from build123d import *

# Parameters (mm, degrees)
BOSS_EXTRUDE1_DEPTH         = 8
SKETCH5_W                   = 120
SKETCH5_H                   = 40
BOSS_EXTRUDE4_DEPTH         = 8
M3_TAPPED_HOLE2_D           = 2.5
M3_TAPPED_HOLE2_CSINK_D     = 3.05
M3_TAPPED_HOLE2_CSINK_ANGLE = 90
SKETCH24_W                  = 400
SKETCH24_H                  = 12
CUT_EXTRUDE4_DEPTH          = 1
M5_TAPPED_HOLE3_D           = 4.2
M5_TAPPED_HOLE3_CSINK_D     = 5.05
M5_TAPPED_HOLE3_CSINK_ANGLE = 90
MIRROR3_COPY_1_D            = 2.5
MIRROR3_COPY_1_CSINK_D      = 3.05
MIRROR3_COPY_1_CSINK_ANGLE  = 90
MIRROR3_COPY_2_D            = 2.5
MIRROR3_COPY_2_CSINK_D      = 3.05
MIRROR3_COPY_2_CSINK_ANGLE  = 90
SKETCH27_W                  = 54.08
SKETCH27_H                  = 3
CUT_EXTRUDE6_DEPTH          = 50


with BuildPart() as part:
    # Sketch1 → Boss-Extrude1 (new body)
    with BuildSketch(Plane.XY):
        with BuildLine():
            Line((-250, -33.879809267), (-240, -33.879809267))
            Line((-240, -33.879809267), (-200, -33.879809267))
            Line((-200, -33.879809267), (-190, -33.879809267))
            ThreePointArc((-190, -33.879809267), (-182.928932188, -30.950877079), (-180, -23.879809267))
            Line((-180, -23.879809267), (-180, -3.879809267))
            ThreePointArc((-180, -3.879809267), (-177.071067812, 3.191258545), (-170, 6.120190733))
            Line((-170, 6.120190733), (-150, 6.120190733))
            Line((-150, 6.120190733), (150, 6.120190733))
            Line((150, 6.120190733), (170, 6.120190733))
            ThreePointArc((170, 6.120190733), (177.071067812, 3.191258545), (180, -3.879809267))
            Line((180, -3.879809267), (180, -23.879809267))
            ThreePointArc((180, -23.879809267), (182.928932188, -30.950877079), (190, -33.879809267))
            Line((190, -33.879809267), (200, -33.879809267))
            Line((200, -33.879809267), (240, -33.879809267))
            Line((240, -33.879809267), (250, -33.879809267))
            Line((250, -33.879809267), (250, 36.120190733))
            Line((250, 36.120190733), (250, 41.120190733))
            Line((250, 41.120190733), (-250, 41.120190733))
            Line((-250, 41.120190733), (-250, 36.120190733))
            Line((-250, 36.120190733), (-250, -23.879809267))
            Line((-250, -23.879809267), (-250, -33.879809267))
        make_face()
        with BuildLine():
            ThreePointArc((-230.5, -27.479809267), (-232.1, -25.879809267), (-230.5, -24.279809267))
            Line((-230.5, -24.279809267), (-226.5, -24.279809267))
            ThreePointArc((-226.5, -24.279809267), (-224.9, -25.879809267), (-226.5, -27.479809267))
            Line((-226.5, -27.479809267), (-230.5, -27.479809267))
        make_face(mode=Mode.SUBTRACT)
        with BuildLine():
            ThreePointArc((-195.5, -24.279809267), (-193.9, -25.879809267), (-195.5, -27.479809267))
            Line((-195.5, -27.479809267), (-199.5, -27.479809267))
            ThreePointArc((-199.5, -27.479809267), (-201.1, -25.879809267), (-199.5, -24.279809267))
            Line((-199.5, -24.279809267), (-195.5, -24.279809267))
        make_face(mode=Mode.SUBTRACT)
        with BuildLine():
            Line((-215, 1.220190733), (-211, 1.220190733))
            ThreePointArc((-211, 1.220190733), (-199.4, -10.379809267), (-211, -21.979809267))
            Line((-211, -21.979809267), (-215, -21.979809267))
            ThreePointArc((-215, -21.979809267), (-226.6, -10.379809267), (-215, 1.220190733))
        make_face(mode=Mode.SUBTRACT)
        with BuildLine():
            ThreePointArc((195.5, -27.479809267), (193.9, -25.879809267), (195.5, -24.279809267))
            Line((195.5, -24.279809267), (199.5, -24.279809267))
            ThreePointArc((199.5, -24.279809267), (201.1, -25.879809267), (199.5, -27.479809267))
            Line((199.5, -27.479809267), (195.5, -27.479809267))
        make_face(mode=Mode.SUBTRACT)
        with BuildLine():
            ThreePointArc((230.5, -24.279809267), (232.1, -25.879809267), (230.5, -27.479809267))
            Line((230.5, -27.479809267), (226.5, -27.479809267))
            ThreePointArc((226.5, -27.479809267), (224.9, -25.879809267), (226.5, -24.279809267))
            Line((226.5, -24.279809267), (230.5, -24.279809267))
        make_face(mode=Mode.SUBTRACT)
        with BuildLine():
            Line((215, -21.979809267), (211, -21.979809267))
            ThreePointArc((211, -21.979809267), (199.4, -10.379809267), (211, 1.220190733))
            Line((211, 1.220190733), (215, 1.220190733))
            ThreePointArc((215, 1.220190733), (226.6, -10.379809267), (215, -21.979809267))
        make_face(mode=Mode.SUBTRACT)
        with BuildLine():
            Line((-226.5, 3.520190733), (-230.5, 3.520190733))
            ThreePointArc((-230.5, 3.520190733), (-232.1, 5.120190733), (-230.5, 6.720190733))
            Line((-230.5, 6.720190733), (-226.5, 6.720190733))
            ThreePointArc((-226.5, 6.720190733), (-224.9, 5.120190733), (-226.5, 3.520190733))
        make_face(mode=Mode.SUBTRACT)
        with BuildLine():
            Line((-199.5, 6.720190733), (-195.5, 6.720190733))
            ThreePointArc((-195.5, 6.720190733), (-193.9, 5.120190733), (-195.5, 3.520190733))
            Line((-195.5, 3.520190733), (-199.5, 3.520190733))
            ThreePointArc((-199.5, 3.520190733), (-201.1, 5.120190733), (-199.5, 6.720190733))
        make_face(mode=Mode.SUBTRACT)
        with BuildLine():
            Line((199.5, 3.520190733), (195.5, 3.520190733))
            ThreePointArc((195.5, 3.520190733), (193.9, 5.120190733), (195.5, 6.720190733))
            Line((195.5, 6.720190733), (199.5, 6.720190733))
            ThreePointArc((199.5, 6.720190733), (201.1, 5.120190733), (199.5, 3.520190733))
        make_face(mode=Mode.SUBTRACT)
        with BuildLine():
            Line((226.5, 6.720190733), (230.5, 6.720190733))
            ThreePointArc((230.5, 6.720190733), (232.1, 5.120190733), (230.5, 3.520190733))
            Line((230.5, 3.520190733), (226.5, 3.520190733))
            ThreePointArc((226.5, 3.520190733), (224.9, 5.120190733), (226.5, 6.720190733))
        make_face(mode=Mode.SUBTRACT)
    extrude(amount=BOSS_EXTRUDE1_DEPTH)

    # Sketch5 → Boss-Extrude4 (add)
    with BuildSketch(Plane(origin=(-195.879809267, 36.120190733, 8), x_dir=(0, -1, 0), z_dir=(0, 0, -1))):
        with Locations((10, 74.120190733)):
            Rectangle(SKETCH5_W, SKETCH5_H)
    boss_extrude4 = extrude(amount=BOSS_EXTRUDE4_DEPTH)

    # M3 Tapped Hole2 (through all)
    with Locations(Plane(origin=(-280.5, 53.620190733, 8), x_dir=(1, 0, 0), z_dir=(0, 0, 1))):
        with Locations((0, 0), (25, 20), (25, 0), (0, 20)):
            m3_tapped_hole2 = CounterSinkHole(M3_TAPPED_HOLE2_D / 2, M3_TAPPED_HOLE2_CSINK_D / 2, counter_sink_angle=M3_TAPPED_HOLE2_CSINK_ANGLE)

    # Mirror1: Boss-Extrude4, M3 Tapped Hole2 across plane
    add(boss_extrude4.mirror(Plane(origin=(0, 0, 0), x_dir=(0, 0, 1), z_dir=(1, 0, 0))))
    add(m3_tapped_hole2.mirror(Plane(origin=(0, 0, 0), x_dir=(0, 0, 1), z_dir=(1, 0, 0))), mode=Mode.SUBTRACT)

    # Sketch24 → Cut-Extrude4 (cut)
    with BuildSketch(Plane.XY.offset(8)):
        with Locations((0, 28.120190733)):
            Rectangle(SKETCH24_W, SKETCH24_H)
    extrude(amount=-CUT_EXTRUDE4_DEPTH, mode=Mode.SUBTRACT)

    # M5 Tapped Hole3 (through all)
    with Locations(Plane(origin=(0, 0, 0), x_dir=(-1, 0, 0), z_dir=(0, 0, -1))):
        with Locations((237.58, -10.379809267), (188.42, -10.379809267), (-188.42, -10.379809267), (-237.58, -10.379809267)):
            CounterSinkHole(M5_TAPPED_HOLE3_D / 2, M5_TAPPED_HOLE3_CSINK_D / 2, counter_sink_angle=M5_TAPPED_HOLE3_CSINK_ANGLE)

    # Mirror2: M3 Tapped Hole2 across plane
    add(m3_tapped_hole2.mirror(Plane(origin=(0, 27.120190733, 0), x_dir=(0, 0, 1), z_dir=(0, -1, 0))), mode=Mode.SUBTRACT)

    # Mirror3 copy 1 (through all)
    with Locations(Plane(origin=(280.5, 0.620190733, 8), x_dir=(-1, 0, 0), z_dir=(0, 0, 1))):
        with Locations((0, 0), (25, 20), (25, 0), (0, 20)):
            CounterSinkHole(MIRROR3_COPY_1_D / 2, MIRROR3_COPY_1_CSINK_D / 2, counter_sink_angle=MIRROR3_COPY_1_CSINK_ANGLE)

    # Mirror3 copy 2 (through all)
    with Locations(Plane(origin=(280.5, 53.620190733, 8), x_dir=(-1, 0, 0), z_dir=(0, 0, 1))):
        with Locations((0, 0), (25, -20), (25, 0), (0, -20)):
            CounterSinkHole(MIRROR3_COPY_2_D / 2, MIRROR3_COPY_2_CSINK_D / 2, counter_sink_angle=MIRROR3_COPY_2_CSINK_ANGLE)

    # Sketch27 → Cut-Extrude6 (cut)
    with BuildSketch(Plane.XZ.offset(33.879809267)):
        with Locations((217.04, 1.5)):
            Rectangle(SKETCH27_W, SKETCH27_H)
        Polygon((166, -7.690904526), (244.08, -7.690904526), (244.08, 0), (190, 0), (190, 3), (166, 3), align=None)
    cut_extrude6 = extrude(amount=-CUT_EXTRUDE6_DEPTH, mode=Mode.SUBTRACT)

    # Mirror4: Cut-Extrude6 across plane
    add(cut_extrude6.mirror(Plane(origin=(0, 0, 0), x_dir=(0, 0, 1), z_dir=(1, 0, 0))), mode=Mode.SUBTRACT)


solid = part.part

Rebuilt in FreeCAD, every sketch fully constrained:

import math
import FreeCAD as App
import Part
import Sketcher

V = App.Vector

doc = App.newDocument("Part")
params = doc.addObject("Spreadsheet::Sheet", "Params")
for row, (alias, value) in enumerate([
    ("sketch1_radius", "10 mm"),
    ("sketch1_radius2", "1.6 mm"),
    ("sketch1_radius3", "11.6 mm"),
    ("sketch1_width", "60 mm"),
    ("sketch1_width2", "340 mm"),
    ("pad1_length", "8 mm"),
    ("sketch2_width", "40 mm"),
    ("sketch2_height", "120 mm"),
    ("pad2_length", "8 mm"),
    ("sketch3_diameter", "2.5 mm"),
    ("hole_diameter", "2.5 mm"),
    ("hole_csink_diameter", "3.05 mm"),
    ("sketch4_width", "400 mm"),
    ("sketch4_height", "12 mm"),
    ("pocket1_length", "1 mm"),
    ("sketch5_diameter", "4.2 mm"),
    ("hole2_diameter", "4.2 mm"),
    ("hole2_csink_diameter", "5.05 mm"),
    ("sketch6_diameter", "2.5 mm"),
    ("hole3_diameter", "2.5 mm"),
    ("hole3_csink_diameter", "3.05 mm"),
    ("sketch7_diameter", "2.5 mm"),
    ("hole4_diameter", "2.5 mm"),
    ("hole4_csink_diameter", "3.05 mm"),
    ("sketch8_width", "78.08 mm"),
    ("pocket2_length", "50 mm"),
], start=1):
    params.set(f"A{row}", alias)
    params.set(f"B{row}", "=" + value)
    params.setAlias(f"B{row}", alias)

body = doc.addObject("PartDesign::Body", "Body")

sketch1 = body.newObject("Sketcher::SketchObject", "Sketch")
sketch1.AttachmentSupport = (doc.getObject("XY_Plane"), [""])
sketch1.MapMode = "FlatFace"
sketch1.addGeometry(Part.LineSegment(V(-250, -33.9, 0), V(-190, -33.9, 0)), False)
sketch1.addGeometry(Part.ArcOfCircle(Part.Circle(V(-190, -23.9, 0), V(0, 0, 1), 10), math.radians(-90), math.radians(0)), False)
sketch1.addGeometry(Part.LineSegment(V(-180, -23.9, 0), V(-180, -3.9, 0)), False)
sketch1.addGeometry(Part.ArcOfCircle(Part.Circle(V(-170, -3.9, 0), V(0, 0, 1), 10), math.radians(90), math.radians(180)), False)
sketch1.addGeometry(Part.LineSegment(V(-170, 6.1, 0), V(170, 6.1, 0)), False)
sketch1.addGeometry(Part.ArcOfCircle(Part.Circle(V(170, -3.9, 0), V(0, 0, 1), 10), math.radians(0), math.radians(90)), False)
sketch1.addGeometry(Part.LineSegment(V(180, -3.9, 0), V(180, -23.9, 0)), False)
sketch1.addGeometry(Part.ArcOfCircle(Part.Circle(V(190, -23.9, 0), V(0, 0, 1), 10), math.radians(180), math.radians(270)), False)
sketch1.addGeometry(Part.LineSegment(V(190, -33.9, 0), V(250, -33.9, 0)), False)
sketch1.addGeometry(Part.LineSegment(V(250, -33.9, 0), V(250, 41.1, 0)), False)
sketch1.addGeometry(Part.LineSegment(V(250, 41.1, 0), V(-250, 41.1, 0)), False)
sketch1.addGeometry(Part.LineSegment(V(-250, 41.1, 0), V(-250, -33.9, 0)), False)
sketch1.addGeometry(Part.LineSegment(V(-226.5, -27.5, 0), V(-230.5, -27.5, 0)), False)
sketch1.addGeometry(Part.ArcOfCircle(Part.Circle(V(-230.5, -25.9, 0), V(0, 0, 1), 1.6), math.radians(90), math.radians(270)), False)
sketch1.addGeometry(Part.LineSegment(V(-230.5, -24.3, 0), V(-226.5, -24.3, 0)), False)
sketch1.addGeometry(Part.ArcOfCircle(Part.Circle(V(-226.5, -25.9, 0), V(0, 0, 1), 1.6), math.radians(-90), math.radians(90)), False)
sketch1.addGeometry(Part.LineSegment(V(-199.5, -24.3, 0), V(-195.5, -24.3, 0)), False)
sketch1.addGeometry(Part.ArcOfCircle(Part.Circle(V(-195.5, -25.9, 0), V(0, 0, 1), 1.6), math.radians(-90), math.radians(90)), False)
sketch1.addGeometry(Part.LineSegment(V(-195.5, -27.5, 0), V(-199.5, -27.5, 0)), False)
sketch1.addGeometry(Part.ArcOfCircle(Part.Circle(V(-199.5, -25.9, 0), V(0, 0, 1), 1.6), math.radians(90), math.radians(270)), False)
sketch1.addGeometry(Part.LineSegment(V(199.5, -27.5, 0), V(195.5, -27.5, 0)), False)
sketch1.addGeometry(Part.ArcOfCircle(Part.Circle(V(195.5, -25.9, 0), V(0, 0, 1), 1.6), math.radians(90), math.radians(270)), False)
sketch1.addGeometry(Part.LineSegment(V(195.5, -24.3, 0), V(199.5, -24.3, 0)), False)
sketch1.addGeometry(Part.ArcOfCircle(Part.Circle(V(199.5, -25.9, 0), V(0, 0, 1), 1.6), math.radians(-90), math.radians(90)), False)
sketch1.addGeometry(Part.LineSegment(V(226.5, -24.3, 0), V(230.5, -24.3, 0)), False)
sketch1.addGeometry(Part.ArcOfCircle(Part.Circle(V(230.5, -25.9, 0), V(0, 0, 1), 1.6), math.radians(-90), math.radians(90)), False)
sketch1.addGeometry(Part.LineSegment(V(230.5, -27.5, 0), V(226.5, -27.5, 0)), False)
sketch1.addGeometry(Part.ArcOfCircle(Part.Circle(V(226.5, -25.9, 0), V(0, 0, 1), 1.6), math.radians(90), math.radians(270)), False)
sketch1.addGeometry(Part.ArcOfCircle(Part.Circle(V(-215, -10.4, 0), V(0, 0, 1), 11.6), math.radians(90), math.radians(270)), False)
sketch1.addGeometry(Part.LineSegment(V(-215, 1.2, 0), V(-211, 1.2, 0)), False)
sketch1.addGeometry(Part.ArcOfCircle(Part.Circle(V(-211, -10.4, 0), V(0, 0, 1), 11.6), math.radians(-90), math.radians(90)), False)
sketch1.addGeometry(Part.LineSegment(V(-211, -22, 0), V(-215, -22, 0)), False)
sketch1.addGeometry(Part.ArcOfCircle(Part.Circle(V(-226.5, 5.1, 0), V(0, 0, 1), 1.6), math.radians(-90), math.radians(90)), False)
sketch1.addGeometry(Part.LineSegment(V(-226.5, 3.5, 0), V(-230.5, 3.5, 0)), False)
sketch1.addGeometry(Part.ArcOfCircle(Part.Circle(V(-230.5, 5.1, 0), V(0, 0, 1), 1.6), math.radians(90), math.radians(270)), False)
sketch1.addGeometry(Part.LineSegment(V(-230.5, 6.7, 0), V(-226.5, 6.7, 0)), False)
sketch1.addGeometry(Part.ArcOfCircle(Part.Circle(V(-199.5, 5.1, 0), V(0, 0, 1), 1.6), math.radians(90), math.radians(270)), False)
sketch1.addGeometry(Part.LineSegment(V(-199.5, 6.7, 0), V(-195.5, 6.7, 0)), False)
sketch1.addGeometry(Part.ArcOfCircle(Part.Circle(V(-195.5, 5.1, 0), V(0, 0, 1), 1.6), math.radians(-90), math.radians(90)), False)
sketch1.addGeometry(Part.LineSegment(V(-195.5, 3.5, 0), V(-199.5, 3.5, 0)), False)
sketch1.addGeometry(Part.ArcOfCircle(Part.Circle(V(215, -10.4, 0), V(0, 0, 1), 11.6), math.radians(-90), math.radians(90)), False)
sketch1.addGeometry(Part.LineSegment(V(215, -22, 0), V(211, -22, 0)), False)
sketch1.addGeometry(Part.ArcOfCircle(Part.Circle(V(211, -10.4, 0), V(0, 0, 1), 11.6), math.radians(90), math.radians(270)), False)
sketch1.addGeometry(Part.LineSegment(V(211, 1.2, 0), V(215, 1.2, 0)), False)
sketch1.addGeometry(Part.ArcOfCircle(Part.Circle(V(199.5, 5.1, 0), V(0, 0, 1), 1.6), math.radians(-90), math.radians(90)), False)
sketch1.addGeometry(Part.LineSegment(V(199.5, 3.5, 0), V(195.5, 3.5, 0)), False)
sketch1.addGeometry(Part.ArcOfCircle(Part.Circle(V(195.5, 5.1, 0), V(0, 0, 1), 1.6), math.radians(90), math.radians(270)), False)
sketch1.addGeometry(Part.LineSegment(V(195.5, 6.7, 0), V(199.5, 6.7, 0)), False)
sketch1.addGeometry(Part.ArcOfCircle(Part.Circle(V(226.5, 5.1, 0), V(0, 0, 1), 1.6), math.radians(90), math.radians(270)), False)
sketch1.addGeometry(Part.LineSegment(V(226.5, 6.7, 0), V(230.5, 6.7, 0)), False)
sketch1.addGeometry(Part.ArcOfCircle(Part.Circle(V(230.5, 5.1, 0), V(0, 0, 1), 1.6), math.radians(-90), math.radians(90)), False)
sketch1.addGeometry(Part.LineSegment(V(230.5, 3.5, 0), V(226.5, 3.5, 0)), False)
sketch1.addConstraint(Sketcher.Constraint("Tangent", 0, 2, 1, 1))
sketch1.addConstraint(Sketcher.Constraint("Tangent", 1, 2, 2, 1))
sketch1.addConstraint(Sketcher.Constraint("Tangent", 2, 2, 3, 2))
sketch1.addConstraint(Sketcher.Constraint("Tangent", 3, 1, 4, 1))
sketch1.addConstraint(Sketcher.Constraint("Tangent", 4, 2, 5, 2))
sketch1.addConstraint(Sketcher.Constraint("Tangent", 5, 1, 6, 1))
sketch1.addConstraint(Sketcher.Constraint("Tangent", 6, 2, 7, 1))
sketch1.addConstraint(Sketcher.Constraint("Tangent", 7, 2, 8, 1))
sketch1.addConstraint(Sketcher.Constraint("Coincident", 8, 2, 9, 1))
sketch1.addConstraint(Sketcher.Constraint("Coincident", 9, 2, 10, 1))
sketch1.addConstraint(Sketcher.Constraint("Coincident", 10, 2, 11, 1))
sketch1.addConstraint(Sketcher.Constraint("Coincident", 11, 2, 0, 1))
sketch1.addConstraint(Sketcher.Constraint("Tangent", 12, 2, 13, 2))
sketch1.addConstraint(Sketcher.Constraint("Tangent", 13, 1, 14, 1))
sketch1.addConstraint(Sketcher.Constraint("Tangent", 14, 2, 15, 2))
sketch1.addConstraint(Sketcher.Constraint("Tangent", 15, 1, 12, 1))
sketch1.addConstraint(Sketcher.Constraint("Tangent", 16, 2, 17, 2))
sketch1.addConstraint(Sketcher.Constraint("Tangent", 17, 1, 18, 1))
sketch1.addConstraint(Sketcher.Constraint("Tangent", 18, 2, 19, 2))
sketch1.addConstraint(Sketcher.Constraint("Tangent", 19, 1, 16, 1))
sketch1.addConstraint(Sketcher.Constraint("Tangent", 20, 2, 21, 2))
sketch1.addConstraint(Sketcher.Constraint("Tangent", 21, 1, 22, 1))
sketch1.addConstraint(Sketcher.Constraint("Tangent", 22, 2, 23, 2))
sketch1.addConstraint(Sketcher.Constraint("Tangent", 23, 1, 20, 1))
sketch1.addConstraint(Sketcher.Constraint("Tangent", 24, 2, 25, 2))
sketch1.addConstraint(Sketcher.Constraint("Tangent", 25, 1, 26, 1))
sketch1.addConstraint(Sketcher.Constraint("Tangent", 26, 2, 27, 2))
sketch1.addConstraint(Sketcher.Constraint("Tangent", 27, 1, 24, 1))
sketch1.addConstraint(Sketcher.Constraint("Tangent", 28, 1, 29, 1))
sketch1.addConstraint(Sketcher.Constraint("Tangent", 29, 2, 30, 2))
sketch1.addConstraint(Sketcher.Constraint("Tangent", 30, 1, 31, 1))
sketch1.addConstraint(Sketcher.Constraint("Tangent", 31, 2, 28, 2))
sketch1.addConstraint(Sketcher.Constraint("Tangent", 32, 1, 33, 1))
sketch1.addConstraint(Sketcher.Constraint("Tangent", 33, 2, 34, 2))
sketch1.addConstraint(Sketcher.Constraint("Tangent", 34, 1, 35, 1))
sketch1.addConstraint(Sketcher.Constraint("Tangent", 35, 2, 32, 2))
sketch1.addConstraint(Sketcher.Constraint("Tangent", 36, 1, 37, 1))
sketch1.addConstraint(Sketcher.Constraint("Tangent", 37, 2, 38, 2))
sketch1.addConstraint(Sketcher.Constraint("Tangent", 38, 1, 39, 1))
sketch1.addConstraint(Sketcher.Constraint("Tangent", 39, 2, 36, 2))
sketch1.addConstraint(Sketcher.Constraint("Tangent", 40, 1, 41, 1))
sketch1.addConstraint(Sketcher.Constraint("Tangent", 41, 2, 42, 2))
sketch1.addConstraint(Sketcher.Constraint("Tangent", 42, 1, 43, 1))
sketch1.addConstraint(Sketcher.Constraint("Tangent", 43, 2, 40, 2))
sketch1.addConstraint(Sketcher.Constraint("Tangent", 44, 1, 45, 1))
sketch1.addConstraint(Sketcher.Constraint("Tangent", 45, 2, 46, 2))
sketch1.addConstraint(Sketcher.Constraint("Tangent", 46, 1, 47, 1))
sketch1.addConstraint(Sketcher.Constraint("Tangent", 47, 2, 44, 2))
sketch1.addConstraint(Sketcher.Constraint("Tangent", 48, 1, 49, 1))
sketch1.addConstraint(Sketcher.Constraint("Tangent", 49, 2, 50, 2))
sketch1.addConstraint(Sketcher.Constraint("Tangent", 50, 1, 51, 1))
sketch1.addConstraint(Sketcher.Constraint("Tangent", 51, 2, 48, 2))
sketch1.addConstraint(Sketcher.Constraint("Horizontal", 0))
sketch1.addConstraint(Sketcher.Constraint("Vertical", 2))
sketch1.addConstraint(Sketcher.Constraint("Horizontal", 4))
sketch1.addConstraint(Sketcher.Constraint("Vertical", 6))
sketch1.addConstraint(Sketcher.Constraint("Horizontal", 8))
sketch1.addConstraint(Sketcher.Constraint("Vertical", 9))
sketch1.addConstraint(Sketcher.Constraint("Horizontal", 10))
sketch1.addConstraint(Sketcher.Constraint("Vertical", 11))
sketch1.addConstraint(Sketcher.Constraint("Horizontal", 12))
sketch1.addConstraint(Sketcher.Constraint("Horizontal", 14))
sketch1.addConstraint(Sketcher.Constraint("Horizontal", 16))
sketch1.addConstraint(Sketcher.Constraint("Horizontal", 18))
sketch1.addConstraint(Sketcher.Constraint("Horizontal", 20))
sketch1.addConstraint(Sketcher.Constraint("Horizontal", 22))
sketch1.addConstraint(Sketcher.Constraint("Horizontal", 24))
sketch1.addConstraint(Sketcher.Constraint("Horizontal", 26))
sketch1.addConstraint(Sketcher.Constraint("Horizontal", 29))
sketch1.addConstraint(Sketcher.Constraint("Horizontal", 31))
sketch1.addConstraint(Sketcher.Constraint("Horizontal", 33))
sketch1.addConstraint(Sketcher.Constraint("Horizontal", 35))
sketch1.addConstraint(Sketcher.Constraint("Horizontal", 37))
sketch1.addConstraint(Sketcher.Constraint("Horizontal", 39))
sketch1.addConstraint(Sketcher.Constraint("Horizontal", 41))
sketch1.addConstraint(Sketcher.Constraint("Horizontal", 43))
sketch1.addConstraint(Sketcher.Constraint("Horizontal", 45))
sketch1.addConstraint(Sketcher.Constraint("Horizontal", 47))
sketch1.addConstraint(Sketcher.Constraint("Horizontal", 49))
sketch1.addConstraint(Sketcher.Constraint("Horizontal", 51))
sketch1.addConstraint(Sketcher.Constraint("Equal", 1, 3))
sketch1.addConstraint(Sketcher.Constraint("Equal", 3, 5))
sketch1.addConstraint(Sketcher.Constraint("Equal", 5, 7))
sketch1.addConstraint(Sketcher.Constraint("Equal", 15, 17))
sketch1.addConstraint(Sketcher.Constraint("Equal", 19, 21))
sketch1.addConstraint(Sketcher.Constraint("Equal", 23, 25))
sketch1.addConstraint(Sketcher.Constraint("Equal", 27, 32))
sketch1.addConstraint(Sketcher.Constraint("Equal", 34, 36))
sketch1.addConstraint(Sketcher.Constraint("Equal", 30, 40))
sketch1.addConstraint(Sketcher.Constraint("Equal", 38, 44))
sketch1.addConstraint(Sketcher.Constraint("Equal", 46, 48))
sketch1.addConstraint(Sketcher.Constraint("Symmetric", 1, 3, 7, 3, -2))
sketch1.addConstraint(Sketcher.Constraint("Symmetric", 17, 3, 21, 3, -2))
sketch1.addConstraint(Sketcher.Constraint("Symmetric", 13, 3, 25, 3, -2))
sketch1.addConstraint(Sketcher.Constraint("Symmetric", 28, 3, 40, 3, -2))
sketch1.addConstraint(Sketcher.Constraint("Symmetric", 36, 3, 44, 3, -2))
sketch1.addConstraint(Sketcher.Constraint("Symmetric", 32, 3, 48, 3, -2))
sketch1.addConstraint(Sketcher.Constraint("Horizontal", 15, 3, 17, 3))
sketch1.addConstraint(Sketcher.Constraint("Horizontal", 34, 3, 36, 3))
sketch1.addConstraint(Sketcher.Constraint("Vertical", 15, 3, 32, 3))
sketch1.addConstraint(Sketcher.Constraint("Vertical", 13, 3, 34, 3))
sketch1.addConstraint(Sketcher.Constraint("Vertical", 19, 3, 36, 3))
sketch1.addConstraint(Sketcher.Constraint("Vertical", 17, 3, 38, 3))
sketch1.addConstraint(Sketcher.Constraint("Vertical", 23, 3, 44, 3))
sketch1.addConstraint(Sketcher.Constraint("Vertical", 21, 3, 46, 3))
sketch1.addConstraint(Sketcher.Constraint("Vertical", 27, 3, 48, 3))
sketch1.addConstraint(Sketcher.Constraint("Vertical", 25, 3, 50, 3))
sketch1.addConstraint(Sketcher.Constraint("Equal", 0, 8))
sketch1.addConstraint(Sketcher.Constraint("Equal", 14, 16))
sketch1.addConstraint(Sketcher.Constraint("Equal", 26, 29))
sketch1.addConstraint(Sketcher.Constraint("Equal", 39, 41))
sketch1.addConstraint(Sketcher.Constraint("Radius", 1, 10.0))
sketch1.addConstraint(Sketcher.Constraint("Radius", 13, 1.6))
sketch1.addConstraint(Sketcher.Constraint("Radius", 28, 11.6))
sketch1.addConstraint(Sketcher.Constraint("DistanceX", 0, 1, 0, 2, 60.0))
sketch1.addConstraint(Sketcher.Constraint("DistanceX", 4, 1, 4, 2, 340.0))
sketch1.addConstraint(Sketcher.Constraint("DistanceX", 12, 2, 12, 1, 4.0))
sketch1.addConstraint(Sketcher.Constraint("DistanceY", 2, 1, 2, 2, 20.0))
sketch1.addConstraint(Sketcher.Constraint("DistanceY", 9, 1, 9, 2, 75.0))
sketch1.addConstraint(Sketcher.Constraint("DistanceX", 28, 3, -1, 1, 215.0))
sketch1.addConstraint(Sketcher.Constraint("DistanceX", 13, 3, -1, 1, 230.5))
sketch1.addConstraint(Sketcher.Constraint("DistanceX", 17, 3, -1, 1, 195.5))
sketch1.addConstraint(Sketcher.Constraint("DistanceY", 1, 3, -1, 1, 23.879809))
sketch1.addConstraint(Sketcher.Constraint("DistanceY", 13, 3, -1, 1, 25.879809))
sketch1.addConstraint(Sketcher.Constraint("DistanceY", 28, 3, -1, 1, 10.379809))
sketch1.addConstraint(Sketcher.Constraint("DistanceY", -1, 1, 32, 3, 5.120191))
sketch1.setExpression("Constraints[111]", "Params.sketch1_radius")
sketch1.setExpression("Constraints[112]", "Params.sketch1_radius2")
sketch1.setExpression("Constraints[113]", "Params.sketch1_radius3")
sketch1.setExpression("Constraints[114]", "Params.sketch1_width")
sketch1.setExpression("Constraints[115]", "Params.sketch1_width2")
pad1 = body.newObject("PartDesign::Pad", "Pad")
pad1.Profile = sketch1
pad1.setExpression("Length", "Params.pad1_length")

sketch2 = body.newObject("Sketcher::SketchObject", "Sketch001")
sketch2.AttachmentSupport = (doc.getObject("XY_Plane"), [""])
sketch2.MapMode = "FlatFace"
sketch2.AttachmentOffset = App.Placement(V(0, 0, 8), App.Rotation())
sketch2.addGeometry(Part.LineSegment(V(-290, 86, 0), V(-250, 86, 0)), False)
sketch2.addGeometry(Part.LineSegment(V(-250, 86, 0), V(-250, -34, 0)), False)
sketch2.addGeometry(Part.LineSegment(V(-250, -34, 0), V(-290, -34, 0)), False)
sketch2.addGeometry(Part.LineSegment(V(-290, -34, 0), V(-290, 86, 0)), False)
sketch2.addConstraint(Sketcher.Constraint("Coincident", 0, 2, 1, 1))
sketch2.addConstraint(Sketcher.Constraint("Coincident", 1, 2, 2, 1))
sketch2.addConstraint(Sketcher.Constraint("Coincident", 2, 2, 3, 1))
sketch2.addConstraint(Sketcher.Constraint("Coincident", 3, 2, 0, 1))
sketch2.addConstraint(Sketcher.Constraint("Horizontal", 0))
sketch2.addConstraint(Sketcher.Constraint("Vertical", 1))
sketch2.addConstraint(Sketcher.Constraint("Horizontal", 2))
sketch2.addConstraint(Sketcher.Constraint("Vertical", 3))
sketch2.addConstraint(Sketcher.Constraint("DistanceX", 0, 1, 0, 2, 40.0))
sketch2.addConstraint(Sketcher.Constraint("DistanceY", 1, 2, 1, 1, 120.0))
sketch2.addConstraint(Sketcher.Constraint("DistanceX", 0, 2, -1, 1, 250.0))
sketch2.addConstraint(Sketcher.Constraint("DistanceY", -1, 1, 0, 2, 86.120191))
sketch2.setExpression("Constraints[8]", "Params.sketch2_width")
sketch2.setExpression("Constraints[9]", "Params.sketch2_height")
pad2 = body.newObject("PartDesign::Pad", "Pad001")
pad2.Profile = sketch2
pad2.setExpression("Length", "Params.pad2_length")
pad2.Reversed = True

sketch3 = body.newObject("Sketcher::SketchObject", "Sketch002")
sketch3.AttachmentSupport = (doc.getObject("XY_Plane"), [""])
sketch3.MapMode = "FlatFace"
sketch3.AttachmentOffset = App.Placement(V(0, 0, 8), App.Rotation())
sketch3.addGeometry(Part.Circle(V(-280.5, 53.6, 0), V(0, 0, 1), 1.2), False)
sketch3.addGeometry(Part.Circle(V(-255.5, 73.6, 0), V(0, 0, 1), 1.2), False)
sketch3.addGeometry(Part.Circle(V(-255.5, 53.6, 0), V(0, 0, 1), 1.2), False)
sketch3.addGeometry(Part.Circle(V(-280.5, 73.6, 0), V(0, 0, 1), 1.2), False)
sketch3.addConstraint(Sketcher.Constraint("Equal", 0, 1))
sketch3.addConstraint(Sketcher.Constraint("Equal", 1, 2))
sketch3.addConstraint(Sketcher.Constraint("Equal", 2, 3))
sketch3.addConstraint(Sketcher.Constraint("Horizontal", 0, 3, 2, 3))
sketch3.addConstraint(Sketcher.Constraint("Horizontal", 1, 3, 3, 3))
sketch3.addConstraint(Sketcher.Constraint("Vertical", 1, 3, 2, 3))
sketch3.addConstraint(Sketcher.Constraint("Vertical", 0, 3, 3, 3))
sketch3.addConstraint(Sketcher.Constraint("Diameter", 0, 2.5))
sketch3.addConstraint(Sketcher.Constraint("DistanceX", 0, 3, 1, 3, 25.0))
sketch3.addConstraint(Sketcher.Constraint("DistanceY", 0, 3, 1, 3, 20.0))
sketch3.addConstraint(Sketcher.Constraint("DistanceX", 0, 3, -1, 1, 280.5))
sketch3.addConstraint(Sketcher.Constraint("DistanceY", -1, 1, 0, 3, 53.620191))
sketch3.setExpression("Constraints[7]", "Params.sketch3_diameter")
doc.recompute()
hole = body.newObject("PartDesign::Hole", "Hole")
hole.Profile = sketch3
hole.ThreadType = "None"
hole.setExpression("Diameter", "Params.hole_diameter")
hole.DepthType = "ThroughAll"
hole.HoleCutType = "Countersink"
hole.setExpression("HoleCutDiameter", "Params.hole_csink_diameter")
hole.HoleCutCountersinkAngle = 90
doc.recompute()

mirrored = body.newObject("PartDesign::Mirrored", "Mirrored")
mirrored.Originals = [pad2, hole]
mirrored.MirrorPlane = (doc.getObject("YZ_Plane"), [""])
body.Tip = mirrored

sketch4 = body.newObject("Sketcher::SketchObject", "Sketch003")
sketch4.AttachmentSupport = (doc.getObject("XY_Plane"), [""])
sketch4.MapMode = "FlatFace"
sketch4.AttachmentOffset = App.Placement(V(0, 0, 8), App.Rotation())
sketch4.addGeometry(Part.LineSegment(V(-200, 34, 0), V(-200, 22, 0)), False)
sketch4.addGeometry(Part.LineSegment(V(-200, 22, 0), V(200, 22, 0)), False)
sketch4.addGeometry(Part.LineSegment(V(200, 22, 0), V(200, 34, 0)), False)
sketch4.addGeometry(Part.LineSegment(V(200, 34, 0), V(-200, 34, 0)), False)
sketch4.addConstraint(Sketcher.Constraint("Coincident", 0, 2, 1, 1))
sketch4.addConstraint(Sketcher.Constraint("Coincident", 1, 2, 2, 1))
sketch4.addConstraint(Sketcher.Constraint("Coincident", 2, 2, 3, 1))
sketch4.addConstraint(Sketcher.Constraint("Coincident", 3, 2, 0, 1))
sketch4.addConstraint(Sketcher.Constraint("Vertical", 0))
sketch4.addConstraint(Sketcher.Constraint("Horizontal", 1))
sketch4.addConstraint(Sketcher.Constraint("Vertical", 2))
sketch4.addConstraint(Sketcher.Constraint("Horizontal", 3))
sketch4.addConstraint(Sketcher.Constraint("DistanceX", 1, 1, 1, 2, 400.0))
sketch4.addConstraint(Sketcher.Constraint("DistanceY", 0, 2, 0, 1, 12.0))
sketch4.addConstraint(Sketcher.Constraint("DistanceX", 0, 2, -1, 1, 200.0))
sketch4.addConstraint(Sketcher.Constraint("DistanceY", -1, 1, 0, 2, 22.120191))
sketch4.setExpression("Constraints[8]", "Params.sketch4_width")
sketch4.setExpression("Constraints[9]", "Params.sketch4_height")
pocket1 = body.newObject("PartDesign::Pocket", "Pocket")
pocket1.Profile = sketch4
pocket1.setExpression("Length", "Params.pocket1_length")

sketch5 = body.newObject("Sketcher::SketchObject", "Sketch004")
sketch5.AttachmentSupport = (doc.getObject("XY_Plane"), [""])
sketch5.MapMode = "FlatFace"
sketch5.addGeometry(Part.Circle(V(-237.6, -10.4, 0), V(0, 0, 1), 2.1), False)
sketch5.addGeometry(Part.Circle(V(-188.4, -10.4, 0), V(0, 0, 1), 2.1), False)
sketch5.addGeometry(Part.Circle(V(188.4, -10.4, 0), V(0, 0, 1), 2.1), False)
sketch5.addGeometry(Part.Circle(V(237.6, -10.4, 0), V(0, 0, 1), 2.1), False)
sketch5.addConstraint(Sketcher.Constraint("Equal", 0, 1))
sketch5.addConstraint(Sketcher.Constraint("Equal", 1, 2))
sketch5.addConstraint(Sketcher.Constraint("Equal", 2, 3))
sketch5.addConstraint(Sketcher.Constraint("Symmetric", 1, 3, 2, 3, -2))
sketch5.addConstraint(Sketcher.Constraint("Symmetric", 0, 3, 3, 3, -2))
sketch5.addConstraint(Sketcher.Constraint("Horizontal", 0, 3, 1, 3))
sketch5.addConstraint(Sketcher.Constraint("Diameter", 0, 4.2))
sketch5.addConstraint(Sketcher.Constraint("DistanceX", 0, 3, 2, 3, 426.0))
sketch5.addConstraint(Sketcher.Constraint("DistanceX", 0, 3, -1, 1, 237.58))
sketch5.addConstraint(Sketcher.Constraint("DistanceY", 0, 3, -1, 1, 10.379809))
sketch5.setExpression("Constraints[6]", "Params.sketch5_diameter")
doc.recompute()
hole2 = body.newObject("PartDesign::Hole", "Hole001")
hole2.Profile = sketch5
hole2.ThreadType = "None"
hole2.setExpression("Diameter", "Params.hole2_diameter")
hole2.DepthType = "ThroughAll"
hole2.HoleCutType = "Countersink"
hole2.setExpression("HoleCutDiameter", "Params.hole2_csink_diameter")
hole2.HoleCutCountersinkAngle = 90
hole2.Reversed = True
doc.recompute()

datumplane = body.newObject("PartDesign::Plane", "DatumPlane")
datumplane.AttachmentSupport = (doc.getObject("XZ_Plane"), [""])
datumplane.MapMode = "FlatFace"
datumplane.AttachmentOffset = App.Placement(V(0, 0, -27.120191), App.Rotation())
mirrored2 = body.newObject("PartDesign::Mirrored", "Mirrored001")
mirrored2.Originals = [hole]
mirrored2.MirrorPlane = (datumplane, [""])
body.Tip = mirrored2

sketch6 = body.newObject("Sketcher::SketchObject", "Sketch005")
sketch6.AttachmentSupport = (doc.getObject("XY_Plane"), [""])
sketch6.MapMode = "FlatFace"
sketch6.AttachmentOffset = App.Placement(V(0, 0, 8), App.Rotation())
sketch6.addGeometry(Part.Circle(V(280.5, 0.6, 0), V(0, 0, 1), 1.2), False)
sketch6.addGeometry(Part.Circle(V(255.5, -19.4, 0), V(0, 0, 1), 1.2), False)
sketch6.addGeometry(Part.Circle(V(255.5, 0.6, 0), V(0, 0, 1), 1.2), False)
sketch6.addGeometry(Part.Circle(V(280.5, -19.4, 0), V(0, 0, 1), 1.2), False)
sketch6.addConstraint(Sketcher.Constraint("Equal", 0, 1))
sketch6.addConstraint(Sketcher.Constraint("Equal", 1, 2))
sketch6.addConstraint(Sketcher.Constraint("Equal", 2, 3))
sketch6.addConstraint(Sketcher.Constraint("Horizontal", 0, 3, 2, 3))
sketch6.addConstraint(Sketcher.Constraint("Horizontal", 1, 3, 3, 3))
sketch6.addConstraint(Sketcher.Constraint("Vertical", 1, 3, 2, 3))
sketch6.addConstraint(Sketcher.Constraint("Vertical", 0, 3, 3, 3))
sketch6.addConstraint(Sketcher.Constraint("Diameter", 0, 2.5))
sketch6.addConstraint(Sketcher.Constraint("DistanceX", 1, 3, 0, 3, 25.0))
sketch6.addConstraint(Sketcher.Constraint("DistanceY", 1, 3, 0, 3, 20.0))
sketch6.addConstraint(Sketcher.Constraint("DistanceX", -1, 1, 0, 3, 280.5))
sketch6.addConstraint(Sketcher.Constraint("DistanceY", -1, 1, 0, 3, 0.620191))
sketch6.setExpression("Constraints[7]", "Params.sketch6_diameter")
doc.recompute()
hole3 = body.newObject("PartDesign::Hole", "Hole002")
hole3.Profile = sketch6
hole3.ThreadType = "None"
hole3.setExpression("Diameter", "Params.hole3_diameter")
hole3.DepthType = "ThroughAll"
hole3.HoleCutType = "Countersink"
hole3.setExpression("HoleCutDiameter", "Params.hole3_csink_diameter")
hole3.HoleCutCountersinkAngle = 90

sketch7 = body.newObject("Sketcher::SketchObject", "Sketch006")
sketch7.AttachmentSupport = (doc.getObject("XY_Plane"), [""])
sketch7.MapMode = "FlatFace"
sketch7.AttachmentOffset = App.Placement(V(0, 0, 8), App.Rotation())
sketch7.addGeometry(Part.Circle(V(280.5, 53.6, 0), V(0, 0, 1), 1.2), False)
sketch7.addGeometry(Part.Circle(V(255.5, 73.6, 0), V(0, 0, 1), 1.2), False)
sketch7.addGeometry(Part.Circle(V(255.5, 53.6, 0), V(0, 0, 1), 1.2), False)
sketch7.addGeometry(Part.Circle(V(280.5, 73.6, 0), V(0, 0, 1), 1.2), False)
sketch7.addConstraint(Sketcher.Constraint("Equal", 0, 1))
sketch7.addConstraint(Sketcher.Constraint("Equal", 1, 2))
sketch7.addConstraint(Sketcher.Constraint("Equal", 2, 3))
sketch7.addConstraint(Sketcher.Constraint("Horizontal", 0, 3, 2, 3))
sketch7.addConstraint(Sketcher.Constraint("Horizontal", 1, 3, 3, 3))
sketch7.addConstraint(Sketcher.Constraint("Vertical", 1, 3, 2, 3))
sketch7.addConstraint(Sketcher.Constraint("Vertical", 0, 3, 3, 3))
sketch7.addConstraint(Sketcher.Constraint("Diameter", 0, 2.5))
sketch7.addConstraint(Sketcher.Constraint("DistanceX", 1, 3, 0, 3, 25.0))
sketch7.addConstraint(Sketcher.Constraint("DistanceY", 0, 3, 1, 3, 20.0))
sketch7.addConstraint(Sketcher.Constraint("DistanceX", -1, 1, 0, 3, 280.5))
sketch7.addConstraint(Sketcher.Constraint("DistanceY", -1, 1, 0, 3, 53.620191))
sketch7.setExpression("Constraints[7]", "Params.sketch7_diameter")
doc.recompute()
hole4 = body.newObject("PartDesign::Hole", "Hole003")
hole4.Profile = sketch7
hole4.ThreadType = "None"
hole4.setExpression("Diameter", "Params.hole4_diameter")
hole4.DepthType = "ThroughAll"
hole4.HoleCutType = "Countersink"
hole4.setExpression("HoleCutDiameter", "Params.hole4_csink_diameter")
hole4.HoleCutCountersinkAngle = 90

sketch8 = body.newObject("Sketcher::SketchObject", "Sketch007")
sketch8.AttachmentSupport = (doc.getObject("XZ_Plane"), [""])
sketch8.MapMode = "FlatFace"
sketch8.AttachmentOffset = App.Placement(V(0, 0, 33.879809), App.Rotation())
sketch8.addGeometry(Part.LineSegment(V(244, 3, 0), V(166, 3, 0)), False)
sketch8.addGeometry(Part.LineSegment(V(166, 3, 0), V(166, -8, 0)), False)
sketch8.addGeometry(Part.LineSegment(V(166, -8, 0), V(244, -8, 0)), False)
sketch8.addGeometry(Part.LineSegment(V(244, -8, 0), V(244, 3, 0)), False)
sketch8.addConstraint(Sketcher.Constraint("Coincident", 0, 2, 1, 1))
sketch8.addConstraint(Sketcher.Constraint("Coincident", 1, 2, 2, 1))
sketch8.addConstraint(Sketcher.Constraint("Coincident", 2, 2, 3, 1))
sketch8.addConstraint(Sketcher.Constraint("Coincident", 3, 2, 0, 1))
sketch8.addConstraint(Sketcher.Constraint("Horizontal", 0))
sketch8.addConstraint(Sketcher.Constraint("Vertical", 1))
sketch8.addConstraint(Sketcher.Constraint("Horizontal", 2))
sketch8.addConstraint(Sketcher.Constraint("Vertical", 3))
sketch8.addConstraint(Sketcher.Constraint("DistanceX", -1, 1, 0, 2, 166.0))
sketch8.addConstraint(Sketcher.Constraint("DistanceY", -1, 1, 0, 2, 3.0))
sketch8.addConstraint(Sketcher.Constraint("DistanceX", 0, 2, 0, 1, 78.08))
sketch8.addConstraint(Sketcher.Constraint("DistanceY", 1, 2, 1, 1, 10.690905))
sketch8.setExpression("Constraints[10]", "Params.sketch8_width")
pocket2 = body.newObject("PartDesign::Pocket", "Pocket001")
pocket2.Profile = sketch8
pocket2.setExpression("Length", "Params.pocket2_length")
doc.recompute()

mirrored3 = body.newObject("PartDesign::Mirrored", "Mirrored002")
mirrored3.Originals = [pocket2]
mirrored3.MirrorPlane = (doc.getObject("YZ_Plane"), [""])
body.Tip = mirrored3

doc.recompute()
